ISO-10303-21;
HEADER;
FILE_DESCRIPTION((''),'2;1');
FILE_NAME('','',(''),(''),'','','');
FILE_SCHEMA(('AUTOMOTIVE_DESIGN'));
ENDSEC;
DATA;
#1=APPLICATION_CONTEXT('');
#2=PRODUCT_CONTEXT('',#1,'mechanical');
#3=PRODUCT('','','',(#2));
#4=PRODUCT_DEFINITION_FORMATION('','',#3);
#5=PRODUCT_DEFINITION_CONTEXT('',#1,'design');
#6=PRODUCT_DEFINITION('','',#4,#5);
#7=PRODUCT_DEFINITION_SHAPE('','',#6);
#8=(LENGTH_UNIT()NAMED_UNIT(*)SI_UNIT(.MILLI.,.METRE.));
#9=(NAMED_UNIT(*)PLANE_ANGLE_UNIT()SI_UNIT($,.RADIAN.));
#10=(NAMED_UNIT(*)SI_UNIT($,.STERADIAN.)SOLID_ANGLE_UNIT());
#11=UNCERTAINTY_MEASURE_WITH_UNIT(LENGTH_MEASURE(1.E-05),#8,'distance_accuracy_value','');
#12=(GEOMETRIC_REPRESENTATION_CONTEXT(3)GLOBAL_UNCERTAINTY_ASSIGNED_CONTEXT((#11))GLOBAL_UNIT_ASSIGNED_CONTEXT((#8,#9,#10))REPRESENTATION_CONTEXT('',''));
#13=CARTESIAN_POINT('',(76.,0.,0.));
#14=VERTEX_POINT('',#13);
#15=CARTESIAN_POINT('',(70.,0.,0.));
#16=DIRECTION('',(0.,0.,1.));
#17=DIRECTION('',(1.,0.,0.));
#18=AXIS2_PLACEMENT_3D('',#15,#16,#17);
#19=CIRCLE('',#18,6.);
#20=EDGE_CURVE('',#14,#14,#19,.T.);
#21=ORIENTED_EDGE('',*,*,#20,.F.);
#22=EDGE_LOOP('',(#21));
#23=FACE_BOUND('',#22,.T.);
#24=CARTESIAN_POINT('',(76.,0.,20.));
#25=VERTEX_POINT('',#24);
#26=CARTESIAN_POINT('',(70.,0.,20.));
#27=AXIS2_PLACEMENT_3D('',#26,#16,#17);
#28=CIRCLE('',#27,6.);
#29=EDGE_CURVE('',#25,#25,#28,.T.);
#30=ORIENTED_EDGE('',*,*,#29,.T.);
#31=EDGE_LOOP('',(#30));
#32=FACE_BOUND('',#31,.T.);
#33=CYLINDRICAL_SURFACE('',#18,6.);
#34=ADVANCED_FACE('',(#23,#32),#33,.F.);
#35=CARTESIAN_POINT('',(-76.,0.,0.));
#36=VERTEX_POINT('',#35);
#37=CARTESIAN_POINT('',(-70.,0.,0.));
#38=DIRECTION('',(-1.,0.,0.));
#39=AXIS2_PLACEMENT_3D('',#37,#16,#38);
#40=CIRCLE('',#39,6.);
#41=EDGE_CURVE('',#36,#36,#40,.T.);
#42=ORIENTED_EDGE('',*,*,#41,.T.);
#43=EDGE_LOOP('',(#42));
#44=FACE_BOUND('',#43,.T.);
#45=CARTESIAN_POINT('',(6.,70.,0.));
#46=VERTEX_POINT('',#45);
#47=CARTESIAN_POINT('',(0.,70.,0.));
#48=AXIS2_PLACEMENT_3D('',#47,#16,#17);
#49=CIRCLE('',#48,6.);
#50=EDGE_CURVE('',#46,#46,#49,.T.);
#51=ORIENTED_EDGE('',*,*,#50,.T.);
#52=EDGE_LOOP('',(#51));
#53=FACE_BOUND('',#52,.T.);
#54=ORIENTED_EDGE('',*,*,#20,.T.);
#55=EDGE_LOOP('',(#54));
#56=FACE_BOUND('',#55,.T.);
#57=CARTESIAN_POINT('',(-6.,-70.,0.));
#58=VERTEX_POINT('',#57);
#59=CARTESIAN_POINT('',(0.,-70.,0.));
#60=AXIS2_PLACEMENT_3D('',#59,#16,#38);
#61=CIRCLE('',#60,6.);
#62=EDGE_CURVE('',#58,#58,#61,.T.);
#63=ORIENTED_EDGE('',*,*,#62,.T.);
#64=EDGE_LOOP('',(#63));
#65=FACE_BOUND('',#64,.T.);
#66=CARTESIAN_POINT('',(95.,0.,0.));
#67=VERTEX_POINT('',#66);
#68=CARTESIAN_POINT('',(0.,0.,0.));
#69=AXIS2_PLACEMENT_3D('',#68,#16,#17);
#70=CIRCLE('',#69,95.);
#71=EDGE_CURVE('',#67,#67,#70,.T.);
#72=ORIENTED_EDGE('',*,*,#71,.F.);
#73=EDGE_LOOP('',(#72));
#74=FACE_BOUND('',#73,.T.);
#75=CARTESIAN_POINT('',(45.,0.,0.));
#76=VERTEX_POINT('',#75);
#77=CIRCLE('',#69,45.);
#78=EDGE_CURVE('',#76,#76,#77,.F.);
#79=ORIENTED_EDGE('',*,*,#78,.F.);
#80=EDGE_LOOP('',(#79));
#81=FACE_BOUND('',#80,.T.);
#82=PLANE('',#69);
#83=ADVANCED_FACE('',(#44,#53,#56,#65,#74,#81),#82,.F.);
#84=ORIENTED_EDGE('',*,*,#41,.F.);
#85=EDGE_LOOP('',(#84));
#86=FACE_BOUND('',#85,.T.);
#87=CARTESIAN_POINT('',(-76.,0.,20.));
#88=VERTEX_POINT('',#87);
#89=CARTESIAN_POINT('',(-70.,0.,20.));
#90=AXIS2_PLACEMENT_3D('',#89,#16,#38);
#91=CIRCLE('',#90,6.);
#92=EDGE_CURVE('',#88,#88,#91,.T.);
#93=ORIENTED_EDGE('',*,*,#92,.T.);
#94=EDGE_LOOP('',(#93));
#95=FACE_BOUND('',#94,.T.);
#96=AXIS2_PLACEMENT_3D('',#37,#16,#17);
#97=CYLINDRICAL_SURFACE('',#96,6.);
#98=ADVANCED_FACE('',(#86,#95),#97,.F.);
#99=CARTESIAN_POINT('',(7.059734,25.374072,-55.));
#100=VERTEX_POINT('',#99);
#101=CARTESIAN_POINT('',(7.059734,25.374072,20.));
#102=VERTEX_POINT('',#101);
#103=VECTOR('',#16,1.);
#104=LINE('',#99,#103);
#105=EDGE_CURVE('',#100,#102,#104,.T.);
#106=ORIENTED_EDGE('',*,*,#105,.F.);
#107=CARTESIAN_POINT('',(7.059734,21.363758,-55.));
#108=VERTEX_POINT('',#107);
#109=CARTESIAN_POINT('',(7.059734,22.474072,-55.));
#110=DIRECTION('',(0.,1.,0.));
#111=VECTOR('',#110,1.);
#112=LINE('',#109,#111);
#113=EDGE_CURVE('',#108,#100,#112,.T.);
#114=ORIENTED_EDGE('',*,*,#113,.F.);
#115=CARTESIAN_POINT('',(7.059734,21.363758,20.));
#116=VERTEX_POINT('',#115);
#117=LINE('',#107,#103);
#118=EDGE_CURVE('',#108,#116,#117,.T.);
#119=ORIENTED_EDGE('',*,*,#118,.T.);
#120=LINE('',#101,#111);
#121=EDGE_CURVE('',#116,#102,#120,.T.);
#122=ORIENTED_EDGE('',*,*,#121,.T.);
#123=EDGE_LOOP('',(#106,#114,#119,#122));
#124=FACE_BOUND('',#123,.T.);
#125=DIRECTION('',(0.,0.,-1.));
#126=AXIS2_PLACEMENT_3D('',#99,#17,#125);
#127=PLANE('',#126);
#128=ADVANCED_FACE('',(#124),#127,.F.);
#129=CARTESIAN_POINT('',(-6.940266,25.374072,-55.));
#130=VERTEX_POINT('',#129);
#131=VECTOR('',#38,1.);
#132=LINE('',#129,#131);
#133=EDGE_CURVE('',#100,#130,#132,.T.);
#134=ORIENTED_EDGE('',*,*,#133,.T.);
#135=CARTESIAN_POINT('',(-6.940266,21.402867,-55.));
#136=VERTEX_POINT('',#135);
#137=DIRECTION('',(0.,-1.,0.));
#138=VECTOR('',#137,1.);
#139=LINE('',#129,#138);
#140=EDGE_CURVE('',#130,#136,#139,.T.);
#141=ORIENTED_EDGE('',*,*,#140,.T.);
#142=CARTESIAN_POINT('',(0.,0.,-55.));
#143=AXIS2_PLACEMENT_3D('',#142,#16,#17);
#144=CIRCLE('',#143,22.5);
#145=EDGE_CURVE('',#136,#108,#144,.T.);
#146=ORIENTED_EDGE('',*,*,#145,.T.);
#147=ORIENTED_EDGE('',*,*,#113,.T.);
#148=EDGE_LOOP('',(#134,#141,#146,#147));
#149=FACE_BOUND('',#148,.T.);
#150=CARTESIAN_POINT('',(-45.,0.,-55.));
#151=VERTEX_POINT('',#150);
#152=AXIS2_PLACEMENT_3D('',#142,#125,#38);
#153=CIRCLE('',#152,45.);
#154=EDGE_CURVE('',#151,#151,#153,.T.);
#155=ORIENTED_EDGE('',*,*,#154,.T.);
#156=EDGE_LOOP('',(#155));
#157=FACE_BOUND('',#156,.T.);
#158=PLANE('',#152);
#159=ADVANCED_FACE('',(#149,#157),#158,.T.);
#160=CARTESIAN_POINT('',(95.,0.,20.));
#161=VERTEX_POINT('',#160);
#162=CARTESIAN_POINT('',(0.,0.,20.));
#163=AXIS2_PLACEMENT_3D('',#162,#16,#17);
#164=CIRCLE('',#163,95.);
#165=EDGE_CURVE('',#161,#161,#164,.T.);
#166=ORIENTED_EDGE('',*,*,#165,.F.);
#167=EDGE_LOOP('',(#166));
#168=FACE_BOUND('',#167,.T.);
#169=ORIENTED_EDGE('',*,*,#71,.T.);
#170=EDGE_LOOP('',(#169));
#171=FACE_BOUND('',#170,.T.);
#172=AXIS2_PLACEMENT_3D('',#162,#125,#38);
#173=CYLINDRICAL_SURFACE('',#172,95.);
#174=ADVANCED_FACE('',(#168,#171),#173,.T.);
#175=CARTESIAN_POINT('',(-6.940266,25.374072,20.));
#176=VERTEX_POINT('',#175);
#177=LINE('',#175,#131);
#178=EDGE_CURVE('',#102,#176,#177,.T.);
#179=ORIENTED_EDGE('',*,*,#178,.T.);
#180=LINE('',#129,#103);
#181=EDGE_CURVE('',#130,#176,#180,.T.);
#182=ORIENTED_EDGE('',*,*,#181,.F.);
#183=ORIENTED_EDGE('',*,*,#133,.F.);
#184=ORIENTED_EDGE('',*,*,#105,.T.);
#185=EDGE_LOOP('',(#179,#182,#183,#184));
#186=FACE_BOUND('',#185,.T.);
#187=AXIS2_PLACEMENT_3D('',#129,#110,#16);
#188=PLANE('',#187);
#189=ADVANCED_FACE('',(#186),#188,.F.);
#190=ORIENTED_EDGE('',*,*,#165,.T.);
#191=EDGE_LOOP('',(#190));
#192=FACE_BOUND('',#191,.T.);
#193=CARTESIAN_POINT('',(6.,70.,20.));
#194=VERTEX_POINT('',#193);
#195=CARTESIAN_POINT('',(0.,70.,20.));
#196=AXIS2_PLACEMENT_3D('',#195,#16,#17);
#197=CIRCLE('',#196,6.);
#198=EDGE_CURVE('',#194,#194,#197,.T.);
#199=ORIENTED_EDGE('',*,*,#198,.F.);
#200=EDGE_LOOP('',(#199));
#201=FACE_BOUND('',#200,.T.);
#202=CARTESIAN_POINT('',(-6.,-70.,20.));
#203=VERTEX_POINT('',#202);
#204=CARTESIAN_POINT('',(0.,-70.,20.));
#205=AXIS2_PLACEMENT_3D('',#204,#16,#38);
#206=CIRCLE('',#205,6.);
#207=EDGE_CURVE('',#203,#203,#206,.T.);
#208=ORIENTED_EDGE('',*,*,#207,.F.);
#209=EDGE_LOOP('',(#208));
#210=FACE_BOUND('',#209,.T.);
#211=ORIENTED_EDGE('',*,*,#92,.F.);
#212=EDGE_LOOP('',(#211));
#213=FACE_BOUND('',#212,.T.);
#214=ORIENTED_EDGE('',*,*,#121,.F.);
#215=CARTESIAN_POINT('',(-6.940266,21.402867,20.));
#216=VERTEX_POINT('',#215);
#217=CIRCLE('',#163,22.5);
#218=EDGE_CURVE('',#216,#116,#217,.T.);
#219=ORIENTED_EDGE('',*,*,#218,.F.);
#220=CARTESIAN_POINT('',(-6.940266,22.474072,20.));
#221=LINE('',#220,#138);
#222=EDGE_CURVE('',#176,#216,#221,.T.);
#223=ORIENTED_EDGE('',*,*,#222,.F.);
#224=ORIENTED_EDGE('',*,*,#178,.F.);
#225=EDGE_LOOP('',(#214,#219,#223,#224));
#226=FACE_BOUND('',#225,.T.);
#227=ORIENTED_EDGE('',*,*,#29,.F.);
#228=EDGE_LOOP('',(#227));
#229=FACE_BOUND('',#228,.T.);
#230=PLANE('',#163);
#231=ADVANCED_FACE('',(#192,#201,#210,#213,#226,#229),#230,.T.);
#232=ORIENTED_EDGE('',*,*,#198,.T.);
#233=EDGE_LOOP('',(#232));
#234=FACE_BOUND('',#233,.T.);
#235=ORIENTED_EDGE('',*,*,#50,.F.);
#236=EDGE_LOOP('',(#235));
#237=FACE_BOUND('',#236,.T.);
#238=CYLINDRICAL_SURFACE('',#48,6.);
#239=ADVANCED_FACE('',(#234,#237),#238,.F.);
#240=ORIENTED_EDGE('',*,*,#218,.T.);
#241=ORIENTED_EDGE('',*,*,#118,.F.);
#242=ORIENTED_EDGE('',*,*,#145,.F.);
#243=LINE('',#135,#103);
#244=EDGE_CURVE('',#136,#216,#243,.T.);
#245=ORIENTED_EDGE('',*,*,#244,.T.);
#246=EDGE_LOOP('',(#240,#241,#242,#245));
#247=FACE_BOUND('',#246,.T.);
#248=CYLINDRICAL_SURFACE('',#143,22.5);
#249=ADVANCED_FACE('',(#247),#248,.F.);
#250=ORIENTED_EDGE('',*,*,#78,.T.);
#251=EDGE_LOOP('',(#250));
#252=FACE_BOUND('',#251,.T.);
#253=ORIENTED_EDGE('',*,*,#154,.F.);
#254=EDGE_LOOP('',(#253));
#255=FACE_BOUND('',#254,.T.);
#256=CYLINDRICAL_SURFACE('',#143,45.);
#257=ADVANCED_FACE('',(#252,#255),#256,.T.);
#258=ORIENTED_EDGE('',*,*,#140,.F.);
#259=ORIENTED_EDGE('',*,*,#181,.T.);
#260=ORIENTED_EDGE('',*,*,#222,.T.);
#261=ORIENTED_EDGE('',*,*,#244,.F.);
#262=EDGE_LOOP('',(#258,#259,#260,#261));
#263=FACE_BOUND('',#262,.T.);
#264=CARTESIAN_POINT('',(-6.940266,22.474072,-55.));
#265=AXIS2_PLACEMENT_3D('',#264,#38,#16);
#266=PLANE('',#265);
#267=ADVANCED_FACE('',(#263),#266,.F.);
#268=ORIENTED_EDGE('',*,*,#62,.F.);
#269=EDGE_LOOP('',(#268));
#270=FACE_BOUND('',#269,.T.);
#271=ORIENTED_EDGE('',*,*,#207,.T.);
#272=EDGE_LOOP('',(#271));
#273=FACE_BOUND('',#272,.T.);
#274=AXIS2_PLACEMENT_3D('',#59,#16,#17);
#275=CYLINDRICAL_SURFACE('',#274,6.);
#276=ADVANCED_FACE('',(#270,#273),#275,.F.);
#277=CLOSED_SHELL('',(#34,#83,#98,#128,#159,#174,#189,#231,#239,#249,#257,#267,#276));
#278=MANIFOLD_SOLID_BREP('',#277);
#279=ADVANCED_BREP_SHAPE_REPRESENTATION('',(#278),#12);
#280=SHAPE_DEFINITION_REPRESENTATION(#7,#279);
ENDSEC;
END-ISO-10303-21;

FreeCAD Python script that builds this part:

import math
import FreeCAD as App
import Part
import Sketcher
from FreeCAD import Vector

doc = App.newDocument("Part")
params = doc.addObject("Spreadsheet::Sheet", "Params")
for row, (alias, value) in enumerate([
    ("sketch1_diameter", "190 mm"),
    ("pad1_length", "20 mm"),
    ("sketch2_diameter", "12 mm"),
    ("pocket1_length", "20 mm"),
    ("sketch3_diameter", "90 mm"),
    ("pad2_length", "55 mm"),
    ("sketch4_radius", "22.5 mm"),
    ("sketch4_width", "14 mm"),
    ("pocket2_length", "75 mm"),
], start=1):
    params.set(f"A{row}", alias)
    params.set(f"B{row}", "=" + value)
    params.setAlias(f"B{row}", alias)

body = doc.addObject("PartDesign::Body", "Body")

# Sketch on XY plane
sketch1 = doc.addObject("Sketcher::SketchObject", "Sketch")
body.addObject(sketch1)
sketch1.AttachmentSupport = (doc.XY_Plane, [""])
sketch1.MapMode = "FlatFace"
sketch1.addGeometry(Part.Circle(Vector(0, 0, 0), Vector(0, 0, 1), 95), False)
sketch1.addConstraint([
    Sketcher.Constraint("Coincident", 0, 3, -1, 1),
    Sketcher.Constraint("Diameter", 0, 190.0),
])
sketch1.setExpression("Constraints[1]", "Params.sketch1_diameter")
pad1 = doc.addObject("PartDesign::Pad", "Pad")
body.addObject(pad1)
pad1.Profile = sketch1
pad1.setExpression("Length", "Params.pad1_length")

# Sketch on XY plane
sketch2 = doc.addObject("Sketcher::SketchObject", "Sketch001")
body.addObject(sketch2)
sketch2.AttachmentSupport = (doc.XY_Plane, [""])
sketch2.MapMode = "FlatFace"
sketch2.AttachmentOffset = App.Placement(Vector(0, 0, 20), App.Rotation())
sketch2.addGeometry([
    Part.Circle(Vector(0, 70, 0), Vector(0, 0, 1), 6),
    Part.Circle(Vector(70, 0, 0), Vector(0, 0, 1), 6),
    Part.Circle(Vector(0, -70, 0), Vector(0, 0, 1), 6),
    Part.Circle(Vector(-70, 0, 0), Vector(0, 0, 1), 6),
], False)
sketch2.addConstraint([
    Sketcher.Constraint("Equal", 0, 1),
    Sketcher.Constraint("Equal", 1, 2),
    Sketcher.Constraint("Equal", 2, 3),
    Sketcher.Constraint("Symmetric", 0, 3, 2, 3, -1, 1),
    Sketcher.Constraint("Symmetric", 1, 3, 3, 3, -1, 1),
    Sketcher.Constraint("PointOnObject", 0, 3, -2),
    Sketcher.Constraint("PointOnObject", 1, 3, -1),
    Sketcher.Constraint("Diameter", 0, 12.0),
    Sketcher.Constraint("DistanceY", -1, 1, 0, 3, 70.0),
    Sketcher.Constraint("DistanceX", -1, 1, 1, 3, 70.0),
])
sketch2.setExpression("Constraints[7]", "Params.sketch2_diameter")
pocket1 = doc.addObject("PartDesign::Pocket", "Pocket")
body.addObject(pocket1)
pocket1.Profile = sketch2
pocket1.setExpression("Length", "Params.pocket1_length")

# Sketch on XY plane
sketch3 = doc.addObject("Sketcher::SketchObject", "Sketch002")
body.addObject(sketch3)
sketch3.AttachmentSupport = (doc.XY_Plane, [""])
sketch3.MapMode = "FlatFace"
sketch3.addGeometry(Part.Circle(Vector(0, 0, 0), Vector(0, 0, 1), 45), False)
sketch3.addConstraint([
    Sketcher.Constraint("Coincident", 0, 3, -1, 1),
    Sketcher.Constraint("Diameter", 0, 90.0),
])
sketch3.setExpression("Constraints[1]", "Params.sketch3_diameter")
pad2 = doc.addObject("PartDesign::Pad", "Pad001")
body.addObject(pad2)
pad2.Profile = sketch3
pad2.setExpression("Length", "Params.pad2_length")
pad2.Reversed = True

# Sketch on XY plane
sketch4 = doc.addObject("Sketcher::SketchObject", "Sketch003")
body.addObject(sketch4)
sketch4.AttachmentSupport = (doc.XY_Plane, [""])
sketch4.MapMode = "FlatFace"
sketch4.AttachmentOffset = App.Placement(Vector(0, 0, 20), App.Rotation())
sketch4.addGeometry([
    Part.ArcOfCircle(Part.Circle(Vector(0, 0, 0), Vector(0, 0, 1), 22.5), math.radians(108), math.radians(432)),
    Part.LineSegment(Vector(7.1, 21.4, 0), Vector(7.1, 25.4, 0)),
    Part.LineSegment(Vector(7.1, 25.4, 0), Vector(-6.9, 25.4, 0)),
    Part.LineSegment(Vector(-6.9, 25.4, 0), Vector(-6.9, 21.4, 0)),
], False)
sketch4.addConstraint([
    Sketcher.Constraint("Coincident", 0, 2, 1, 1),
    Sketcher.Constraint("Coincident", 1, 2, 2, 1),
    Sketcher.Constraint("Coincident", 2, 2, 3, 1),
    Sketcher.Constraint("Coincident", 3, 2, 0, 1),
    Sketcher.Constraint("Vertical", 1),
    Sketcher.Constraint("Horizontal", 2),
    Sketcher.Constraint("Vertical", 3),
    Sketcher.Constraint("Coincident", 0, 3, -1, 1),
    Sketcher.Constraint("Radius", 0, 22.5),
    Sketcher.Constraint("DistanceX", 2, 2, 2, 1, 14.0),
    Sketcher.Constraint("DistanceY", 1, 1, 1, 2, 4.010314),
    Sketcher.Constraint("DistanceY", 3, 2, 3, 1, 3.971205),
])
sketch4.setExpression("Constraints[8]", "Params.sketch4_radius")
sketch4.setExpression("Constraints[9]", "Params.sketch4_width")
pocket2 = doc.addObject("PartDesign::Pocket", "Pocket001")
body.addObject(pocket2)
pocket2.Profile = sketch4
pocket2.setExpression("Length", "Params.pocket2_length")

doc.recompute()
